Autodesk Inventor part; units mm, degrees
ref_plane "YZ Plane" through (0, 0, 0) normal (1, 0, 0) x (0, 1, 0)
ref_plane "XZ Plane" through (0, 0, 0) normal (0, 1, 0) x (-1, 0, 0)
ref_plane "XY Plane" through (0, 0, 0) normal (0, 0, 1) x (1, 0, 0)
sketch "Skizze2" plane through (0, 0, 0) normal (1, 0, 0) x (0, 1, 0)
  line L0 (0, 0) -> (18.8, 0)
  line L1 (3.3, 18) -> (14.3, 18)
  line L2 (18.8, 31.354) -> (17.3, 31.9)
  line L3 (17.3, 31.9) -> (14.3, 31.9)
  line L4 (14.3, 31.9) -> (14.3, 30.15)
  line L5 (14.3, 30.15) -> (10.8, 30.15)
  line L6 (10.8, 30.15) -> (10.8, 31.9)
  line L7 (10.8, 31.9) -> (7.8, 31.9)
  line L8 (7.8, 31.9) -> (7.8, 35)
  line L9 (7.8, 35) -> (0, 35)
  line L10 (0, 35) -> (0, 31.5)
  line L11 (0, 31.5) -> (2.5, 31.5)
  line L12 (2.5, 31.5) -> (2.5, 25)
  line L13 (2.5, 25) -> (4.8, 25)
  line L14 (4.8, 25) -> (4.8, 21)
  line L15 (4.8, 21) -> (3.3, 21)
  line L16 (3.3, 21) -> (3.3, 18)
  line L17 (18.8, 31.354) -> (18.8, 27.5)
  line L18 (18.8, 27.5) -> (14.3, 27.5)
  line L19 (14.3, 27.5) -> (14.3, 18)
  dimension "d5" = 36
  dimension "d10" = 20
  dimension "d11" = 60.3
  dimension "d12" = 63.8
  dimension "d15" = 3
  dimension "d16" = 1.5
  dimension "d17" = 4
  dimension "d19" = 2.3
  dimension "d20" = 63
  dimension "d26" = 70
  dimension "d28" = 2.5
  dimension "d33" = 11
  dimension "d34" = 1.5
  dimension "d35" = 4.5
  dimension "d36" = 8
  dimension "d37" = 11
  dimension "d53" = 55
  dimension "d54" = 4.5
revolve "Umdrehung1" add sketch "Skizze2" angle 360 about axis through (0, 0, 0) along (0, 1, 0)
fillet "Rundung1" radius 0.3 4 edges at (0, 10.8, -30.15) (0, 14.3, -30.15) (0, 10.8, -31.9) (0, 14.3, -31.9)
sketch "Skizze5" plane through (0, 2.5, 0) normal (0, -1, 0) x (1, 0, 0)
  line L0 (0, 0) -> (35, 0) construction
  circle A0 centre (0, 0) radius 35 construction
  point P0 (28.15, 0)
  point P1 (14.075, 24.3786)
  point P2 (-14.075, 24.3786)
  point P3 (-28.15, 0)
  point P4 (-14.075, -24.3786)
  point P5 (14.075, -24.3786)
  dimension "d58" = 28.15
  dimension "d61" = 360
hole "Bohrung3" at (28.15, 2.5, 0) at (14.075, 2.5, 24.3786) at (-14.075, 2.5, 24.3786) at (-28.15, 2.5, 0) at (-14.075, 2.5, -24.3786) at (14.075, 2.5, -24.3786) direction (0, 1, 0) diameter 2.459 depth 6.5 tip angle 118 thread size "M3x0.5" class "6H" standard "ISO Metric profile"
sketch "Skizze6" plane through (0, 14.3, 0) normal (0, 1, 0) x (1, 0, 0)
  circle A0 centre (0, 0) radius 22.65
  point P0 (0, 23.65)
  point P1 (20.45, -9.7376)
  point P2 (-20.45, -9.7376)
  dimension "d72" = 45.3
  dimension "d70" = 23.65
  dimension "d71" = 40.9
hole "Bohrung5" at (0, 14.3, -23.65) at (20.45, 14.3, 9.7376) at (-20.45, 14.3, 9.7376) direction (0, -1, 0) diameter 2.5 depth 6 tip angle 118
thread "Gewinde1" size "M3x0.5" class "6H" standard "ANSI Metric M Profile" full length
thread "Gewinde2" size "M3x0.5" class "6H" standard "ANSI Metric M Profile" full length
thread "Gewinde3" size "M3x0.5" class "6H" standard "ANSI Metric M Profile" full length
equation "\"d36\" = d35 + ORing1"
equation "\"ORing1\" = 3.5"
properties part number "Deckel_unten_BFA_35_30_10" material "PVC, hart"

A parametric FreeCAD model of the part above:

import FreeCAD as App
import Part
import Sketcher
Q = App.Units.Quantity


def edges_at(feature, points):
    """Names of the edges that pass closest to the given points."""
    edges = feature.Shape.Edges
    near = lambda p: min(range(len(edges)), key=lambda i: edges[i].distToShape(Part.Vertex(*p))[0])
    return sorted({f"Edge{near(p) + 1}" for p in points})

doc = App.newDocument("Part")
params = doc.addObject("Spreadsheet::Sheet", "Params")
for row, (alias, value) in enumerate([
    ("sketch1_width", "11 mm"),
    ("sketch1_width2", "3 mm"),
    ("sketch1_height", "4 mm"),
    ("sketch1_width3", "4.5 mm"),
    ("sketch1_width4", "2.5 mm"),
    ("revolution_angle", "360 deg"),
    ("fillet_radius", "0.3 mm"),
    ("hole_diameter", "2.459 mm"),
    ("hole_depth", "6.5 mm"),
    ("sketch3_diameter", "2.5 mm"),
    ("hole2_diameter", "2.5 mm"),
    ("hole2_depth", "6 mm"),
], start=1):
    params.set(f"A{row}", alias)
    params.set(f"B{row}", "=" + value)
    params.setAlias(f"B{row}", alias)

body = doc.addObject("PartDesign::Body", "Body")

# Sketch on YZ plane
sketch1 = body.newObject("Sketcher::SketchObject", "Sketch")
sketch1.AttachmentSupport = (doc.getObject("YZ_Plane"), [""])
sketch1.MapMode = "FlatFace"
sketch1.addGeometry([
    Part.LineSegment(App.Vector(3.3, 21, 0), App.Vector(3.3, 18, 0)),  # 0
    Part.LineSegment(App.Vector(3.3, 18, 0), App.Vector(14.3, 18, 0)),  # 1
    Part.LineSegment(App.Vector(14.3, 18, 0), App.Vector(14.3, 27.5, 0)),  # 2
    Part.LineSegment(App.Vector(14.3, 27.5, 0), App.Vector(18.8, 27.5, 0)),  # 3
    Part.LineSegment(App.Vector(18.8, 27.5, 0), App.Vector(18.8, 31.4, 0)),  # 4
    Part.LineSegment(App.Vector(18.8, 31.4, 0), App.Vector(17.3, 31.9, 0)),  # 5
    Part.LineSegment(App.Vector(17.3, 31.9, 0), App.Vector(14.3, 31.9, 0)),  # 6
    Part.LineSegment(App.Vector(14.3, 31.9, 0), App.Vector(14.3, 30.1, 0)),  # 7
    Part.LineSegment(App.Vector(14.3, 30.1, 0), App.Vector(10.8, 30.1, 0)),  # 8
    Part.LineSegment(App.Vector(10.8, 30.1, 0), App.Vector(10.8, 31.9, 0)),  # 9
    Part.LineSegment(App.Vector(10.8, 31.9, 0), App.Vector(7.8, 31.9, 0)),  # 10
    Part.LineSegment(App.Vector(7.8, 31.9, 0), App.Vector(7.8, 35, 0)),  # 11
    Part.LineSegment(App.Vector(7.8, 35, 0), App.Vector(0, 35, 0)),  # 12
    Part.LineSegment(App.Vector(0, 35, 0), App.Vector(0, 31.5, 0)),  # 13
    Part.LineSegment(App.Vector(0, 31.5, 0), App.Vector(2.5, 31.5, 0)),  # 14
    Part.LineSegment(App.Vector(2.5, 31.5, 0), App.Vector(2.5, 25, 0)),  # 15
    Part.LineSegment(App.Vector(2.5, 25, 0), App.Vector(4.8, 25, 0)),  # 16
    Part.LineSegment(App.Vector(4.8, 25, 0), App.Vector(4.8, 21, 0)),  # 17
    Part.LineSegment(App.Vector(4.8, 21, 0), App.Vector(3.3, 21, 0)),  # 18
], False)
sketch1.addConstraint([
    Sketcher.Constraint("Coincident", 0, 2, 1, 1),
    Sketcher.Constraint("Coincident", 1, 2, 2, 1),
    Sketcher.Constraint("Coincident", 2, 2, 3, 1),
    Sketcher.Constraint("Coincident", 3, 2, 4, 1),
    Sketcher.Constraint("Coincident", 4, 2, 5, 1),
    Sketcher.Constraint("Coincident", 5, 2, 6, 1),
    Sketcher.Constraint("Coincident", 6, 2, 7, 1),
    Sketcher.Constraint("Coincident", 7, 2, 8, 1),
    Sketcher.Constraint("Coincident", 8, 2, 9, 1),
    Sketcher.Constraint("Coincident", 9, 2, 10, 1),
    Sketcher.Constraint("Coincident", 10, 2, 11, 1),
    Sketcher.Constraint("Coincident", 11, 2, 12, 1),
    Sketcher.Constraint("Coincident", 12, 2, 13, 1),
    Sketcher.Constraint("Coincident", 13, 2, 14, 1),
    Sketcher.Constraint("Coincident", 14, 2, 15, 1),
    Sketcher.Constraint("Coincident", 15, 2, 16, 1),
    Sketcher.Constraint("Coincident", 16, 2, 17, 1),
    Sketcher.Constraint("Coincident", 17, 2, 18, 1),
    Sketcher.Constraint("Coincident", 18, 2, 0, 1),
    Sketcher.Constraint("Vertical", 0),
    Sketcher.Constraint("Horizontal", 1),
    Sketcher.Constraint("Vertical", 2),
    Sketcher.Constraint("Horizontal", 3),
    Sketcher.Constraint("Vertical", 4),
    Sketcher.Constraint("Horizontal", 6),
    Sketcher.Constraint("Vertical", 7),
    Sketcher.Constraint("Horizontal", 8),
    Sketcher.Constraint("Vertical", 9),
    Sketcher.Constraint("Horizontal", 10),
    Sketcher.Constraint("Vertical", 11),
    Sketcher.Constraint("Horizontal", 12),
    Sketcher.Constraint("Vertical", 13),
    Sketcher.Constraint("Horizontal", 14),
    Sketcher.Constraint("Vertical", 15),
    Sketcher.Constraint("Horizontal", 16),
    Sketcher.Constraint("Vertical", 17),
    Sketcher.Constraint("Horizontal", 18),
    Sketcher.Constraint("PointOnObject", 12, 2, -2),
    Sketcher.Constraint("Horizontal", 6, 2, 9, 2),
    Sketcher.Constraint("Vertical", 2, 2, 6, 2),
    Sketcher.Constraint("Equal", 6, 10),
    Sketcher.Constraint("Equal", 10, 0),
    Sketcher.Constraint("Equal", 8, 13),
    Sketcher.Constraint("DistanceX", 1, 1, 1, 2, Q("11 mm")),
    Sketcher.Constraint("DistanceX", 6, 2, 6, 1, Q("3 mm")),
    Sketcher.Constraint("DistanceY", 17, 2, 17, 1, Q("4 mm")),
    Sketcher.Constraint("DistanceX", 3, 1, 3, 2, Q("4.5 mm")),
    Sketcher.Constraint("DistanceX", 14, 1, 14, 2, Q("2.5 mm")),
    Sketcher.Constraint("DistanceX", 16, 1, 16, 2, Q("2.3 mm")),
    Sketcher.Constraint("DistanceX", 18, 2, 18, 1, Q("1.5 mm")),
    Sketcher.Constraint("DistanceX", 8, 2, 4, 2, Q("8 mm")),
    Sketcher.Constraint("DistanceY", 2, 1, 2, 2, Q("9.5 mm")),
    Sketcher.Constraint("DistanceY", 11, 1, 11, 2, Q("3.1 mm")),
    Sketcher.Constraint("DistanceY", 15, 2, 15, 1, Q("6.5 mm")),
    Sketcher.Constraint("DistanceY", -1, 1, 0, 2, Q("18 mm")),
    Sketcher.Constraint("DistanceY", 7, 2, 7, 1, Q("1.75 mm")),
    Sketcher.Constraint("DistanceY", 4, 1, 4, 2, Q("3.854 mm")),
])
sketch1.setExpression("Constraints[43]", "Params.sketch1_width")
sketch1.setExpression("Constraints[44]", "Params.sketch1_width2")
sketch1.setExpression("Constraints[45]", "Params.sketch1_height")
sketch1.setExpression("Constraints[46]", "Params.sketch1_width3")
sketch1.setExpression("Constraints[47]", "Params.sketch1_width4")
revolution = body.newObject("PartDesign::Revolution", "Revolution")
revolution.Profile = sketch1
revolution.ReferenceAxis = (sketch1, ["H_Axis"])
revolution.setExpression("Angle", "Params.revolution_angle")
doc.recompute()

fillet = body.newObject("PartDesign::Fillet", "Fillet")
fillet.Base = (revolution, edges_at(revolution, [
    (0, 10.8, -30.15),
    (0, 14.3, -30.15),
    (0, 10.8, -31.9),
    (0, 14.3, -31.9),
]))
fillet.setExpression("Radius", "Params.fillet_radius")

# Sketch on XZ plane
sketch2 = body.newObject("Sketcher::SketchObject", "Sketch001")
sketch2.AttachmentSupport = (doc.getObject("XZ_Plane"), [""])
sketch2.MapMode = "FlatFace"
sketch2.AttachmentOffset = App.Placement(App.Vector(0, 0, -2.5), App.Rotation())
sketch2.addGeometry([
    Part.Circle(App.Vector(28.1, 0, 0), App.Vector(0, 0, 1), 1.2),  # 0
    Part.Circle(App.Vector(14.1, 24.4, 0), App.Vector(0, 0, 1), 1.2),  # 1
    Part.Circle(App.Vector(-14.1, 24.4, 0), App.Vector(0, 0, 1), 1.2),  # 2
    Part.Circle(App.Vector(-28.1, 0, 0), App.Vector(0, 0, 1), 1.2),  # 3
    Part.Circle(App.Vector(-14.1, -24.4, 0), App.Vector(0, 0, 1), 1.2),  # 4
    Part.Circle(App.Vector(14.1, -24.4, 0), App.Vector(0, 0, 1), 1.2),  # 5
], False)
sketch2.addConstraint([
    Sketcher.Constraint("Equal", 0, 1),
    Sketcher.Constraint("Equal", 1, 2),
    Sketcher.Constraint("Equal", 2, 3),
    Sketcher.Constraint("Equal", 3, 4),
    Sketcher.Constraint("Equal", 4, 5),
    Sketcher.Constraint("Symmetric", 0, 3, 3, 3, -1, 1),
    Sketcher.Constraint("Symmetric", 1, 3, 4, 3, -1, 1),
    Sketcher.Constraint("Symmetric", 2, 3, 5, 3, -1, 1),
    Sketcher.Constraint("Symmetric", 1, 3, 2, 3, -2),
    Sketcher.Constraint("PointOnObject", 0, 3, -1),
    Sketcher.Constraint("Diameter", 0, Q("2.459 mm")),
    Sketcher.Constraint("DistanceX", 3, 3, 0, 3, Q("56.3 mm")),
    Sketcher.Constraint("DistanceX", 2, 3, 1, 3, Q("28.15 mm")),
    Sketcher.Constraint("DistanceY", -1, 1, 1, 3, Q("24.3786 mm")),
])
doc.recompute()
hole = body.newObject("PartDesign::Hole", "Hole")
hole.Profile = sketch2
hole.ThreadType = "None"
hole.setExpression("Diameter", "Params.hole_diameter")
hole.DepthType = "Dimension"
hole.setExpression("Depth", "Params.hole_depth")
hole.DrillPoint = "Angled"
hole.DrillPointAngle = 118

# Sketch on XZ plane
sketch3 = body.newObject("Sketcher::SketchObject", "Sketch002")
sketch3.AttachmentSupport = (doc.getObject("XZ_Plane"), [""])
sketch3.MapMode = "FlatFace"
sketch3.AttachmentOffset = App.Placement(App.Vector(0, 0, -14.3), App.Rotation())
sketch3.addGeometry([
    Part.Circle(App.Vector(0, -23.6, 0), App.Vector(0, 0, 1), 1.2),
    Part.Circle(App.Vector(20.4, 9.7, 0), App.Vector(0, 0, 1), 1.2),
    Part.Circle(App.Vector(-20.4, 9.7, 0), App.Vector(0, 0, 1), 1.2),
], False)
sketch3.addConstraint([
    Sketcher.Constraint("Equal", 0, 1),
    Sketcher.Constraint("Equal", 1, 2),
    Sketcher.Constraint("Symmetric", 1, 3, 2, 3, -2),
    Sketcher.Constraint("PointOnObject", 0, 3, -2),
    Sketcher.Constraint("Diameter", 0, Q("2.5 mm")),
    Sketcher.Constraint("DistanceX", 2, 3, 1, 3, Q("40.9 mm")),
    Sketcher.Constraint("DistanceY", 0, 3, -1, 1, Q("23.65 mm")),
    Sketcher.Constraint("DistanceY", -1, 1, 1, 3, Q("9.7376 mm")),
])
sketch3.setExpression("Constraints[4]", "Params.sketch3_diameter")
doc.recompute()
hole2 = body.newObject("PartDesign::Hole", "Hole001")
hole2.Profile = sketch3
hole2.ThreadType = "None"
hole2.setExpression("Diameter", "Params.hole2_diameter")
hole2.DepthType = "Dimension"
hole2.setExpression("Depth", "Params.hole2_depth")
hole2.DrillPoint = "Angled"
hole2.DrillPointAngle = 118
hole2.Reversed = True

doc.recompute()
